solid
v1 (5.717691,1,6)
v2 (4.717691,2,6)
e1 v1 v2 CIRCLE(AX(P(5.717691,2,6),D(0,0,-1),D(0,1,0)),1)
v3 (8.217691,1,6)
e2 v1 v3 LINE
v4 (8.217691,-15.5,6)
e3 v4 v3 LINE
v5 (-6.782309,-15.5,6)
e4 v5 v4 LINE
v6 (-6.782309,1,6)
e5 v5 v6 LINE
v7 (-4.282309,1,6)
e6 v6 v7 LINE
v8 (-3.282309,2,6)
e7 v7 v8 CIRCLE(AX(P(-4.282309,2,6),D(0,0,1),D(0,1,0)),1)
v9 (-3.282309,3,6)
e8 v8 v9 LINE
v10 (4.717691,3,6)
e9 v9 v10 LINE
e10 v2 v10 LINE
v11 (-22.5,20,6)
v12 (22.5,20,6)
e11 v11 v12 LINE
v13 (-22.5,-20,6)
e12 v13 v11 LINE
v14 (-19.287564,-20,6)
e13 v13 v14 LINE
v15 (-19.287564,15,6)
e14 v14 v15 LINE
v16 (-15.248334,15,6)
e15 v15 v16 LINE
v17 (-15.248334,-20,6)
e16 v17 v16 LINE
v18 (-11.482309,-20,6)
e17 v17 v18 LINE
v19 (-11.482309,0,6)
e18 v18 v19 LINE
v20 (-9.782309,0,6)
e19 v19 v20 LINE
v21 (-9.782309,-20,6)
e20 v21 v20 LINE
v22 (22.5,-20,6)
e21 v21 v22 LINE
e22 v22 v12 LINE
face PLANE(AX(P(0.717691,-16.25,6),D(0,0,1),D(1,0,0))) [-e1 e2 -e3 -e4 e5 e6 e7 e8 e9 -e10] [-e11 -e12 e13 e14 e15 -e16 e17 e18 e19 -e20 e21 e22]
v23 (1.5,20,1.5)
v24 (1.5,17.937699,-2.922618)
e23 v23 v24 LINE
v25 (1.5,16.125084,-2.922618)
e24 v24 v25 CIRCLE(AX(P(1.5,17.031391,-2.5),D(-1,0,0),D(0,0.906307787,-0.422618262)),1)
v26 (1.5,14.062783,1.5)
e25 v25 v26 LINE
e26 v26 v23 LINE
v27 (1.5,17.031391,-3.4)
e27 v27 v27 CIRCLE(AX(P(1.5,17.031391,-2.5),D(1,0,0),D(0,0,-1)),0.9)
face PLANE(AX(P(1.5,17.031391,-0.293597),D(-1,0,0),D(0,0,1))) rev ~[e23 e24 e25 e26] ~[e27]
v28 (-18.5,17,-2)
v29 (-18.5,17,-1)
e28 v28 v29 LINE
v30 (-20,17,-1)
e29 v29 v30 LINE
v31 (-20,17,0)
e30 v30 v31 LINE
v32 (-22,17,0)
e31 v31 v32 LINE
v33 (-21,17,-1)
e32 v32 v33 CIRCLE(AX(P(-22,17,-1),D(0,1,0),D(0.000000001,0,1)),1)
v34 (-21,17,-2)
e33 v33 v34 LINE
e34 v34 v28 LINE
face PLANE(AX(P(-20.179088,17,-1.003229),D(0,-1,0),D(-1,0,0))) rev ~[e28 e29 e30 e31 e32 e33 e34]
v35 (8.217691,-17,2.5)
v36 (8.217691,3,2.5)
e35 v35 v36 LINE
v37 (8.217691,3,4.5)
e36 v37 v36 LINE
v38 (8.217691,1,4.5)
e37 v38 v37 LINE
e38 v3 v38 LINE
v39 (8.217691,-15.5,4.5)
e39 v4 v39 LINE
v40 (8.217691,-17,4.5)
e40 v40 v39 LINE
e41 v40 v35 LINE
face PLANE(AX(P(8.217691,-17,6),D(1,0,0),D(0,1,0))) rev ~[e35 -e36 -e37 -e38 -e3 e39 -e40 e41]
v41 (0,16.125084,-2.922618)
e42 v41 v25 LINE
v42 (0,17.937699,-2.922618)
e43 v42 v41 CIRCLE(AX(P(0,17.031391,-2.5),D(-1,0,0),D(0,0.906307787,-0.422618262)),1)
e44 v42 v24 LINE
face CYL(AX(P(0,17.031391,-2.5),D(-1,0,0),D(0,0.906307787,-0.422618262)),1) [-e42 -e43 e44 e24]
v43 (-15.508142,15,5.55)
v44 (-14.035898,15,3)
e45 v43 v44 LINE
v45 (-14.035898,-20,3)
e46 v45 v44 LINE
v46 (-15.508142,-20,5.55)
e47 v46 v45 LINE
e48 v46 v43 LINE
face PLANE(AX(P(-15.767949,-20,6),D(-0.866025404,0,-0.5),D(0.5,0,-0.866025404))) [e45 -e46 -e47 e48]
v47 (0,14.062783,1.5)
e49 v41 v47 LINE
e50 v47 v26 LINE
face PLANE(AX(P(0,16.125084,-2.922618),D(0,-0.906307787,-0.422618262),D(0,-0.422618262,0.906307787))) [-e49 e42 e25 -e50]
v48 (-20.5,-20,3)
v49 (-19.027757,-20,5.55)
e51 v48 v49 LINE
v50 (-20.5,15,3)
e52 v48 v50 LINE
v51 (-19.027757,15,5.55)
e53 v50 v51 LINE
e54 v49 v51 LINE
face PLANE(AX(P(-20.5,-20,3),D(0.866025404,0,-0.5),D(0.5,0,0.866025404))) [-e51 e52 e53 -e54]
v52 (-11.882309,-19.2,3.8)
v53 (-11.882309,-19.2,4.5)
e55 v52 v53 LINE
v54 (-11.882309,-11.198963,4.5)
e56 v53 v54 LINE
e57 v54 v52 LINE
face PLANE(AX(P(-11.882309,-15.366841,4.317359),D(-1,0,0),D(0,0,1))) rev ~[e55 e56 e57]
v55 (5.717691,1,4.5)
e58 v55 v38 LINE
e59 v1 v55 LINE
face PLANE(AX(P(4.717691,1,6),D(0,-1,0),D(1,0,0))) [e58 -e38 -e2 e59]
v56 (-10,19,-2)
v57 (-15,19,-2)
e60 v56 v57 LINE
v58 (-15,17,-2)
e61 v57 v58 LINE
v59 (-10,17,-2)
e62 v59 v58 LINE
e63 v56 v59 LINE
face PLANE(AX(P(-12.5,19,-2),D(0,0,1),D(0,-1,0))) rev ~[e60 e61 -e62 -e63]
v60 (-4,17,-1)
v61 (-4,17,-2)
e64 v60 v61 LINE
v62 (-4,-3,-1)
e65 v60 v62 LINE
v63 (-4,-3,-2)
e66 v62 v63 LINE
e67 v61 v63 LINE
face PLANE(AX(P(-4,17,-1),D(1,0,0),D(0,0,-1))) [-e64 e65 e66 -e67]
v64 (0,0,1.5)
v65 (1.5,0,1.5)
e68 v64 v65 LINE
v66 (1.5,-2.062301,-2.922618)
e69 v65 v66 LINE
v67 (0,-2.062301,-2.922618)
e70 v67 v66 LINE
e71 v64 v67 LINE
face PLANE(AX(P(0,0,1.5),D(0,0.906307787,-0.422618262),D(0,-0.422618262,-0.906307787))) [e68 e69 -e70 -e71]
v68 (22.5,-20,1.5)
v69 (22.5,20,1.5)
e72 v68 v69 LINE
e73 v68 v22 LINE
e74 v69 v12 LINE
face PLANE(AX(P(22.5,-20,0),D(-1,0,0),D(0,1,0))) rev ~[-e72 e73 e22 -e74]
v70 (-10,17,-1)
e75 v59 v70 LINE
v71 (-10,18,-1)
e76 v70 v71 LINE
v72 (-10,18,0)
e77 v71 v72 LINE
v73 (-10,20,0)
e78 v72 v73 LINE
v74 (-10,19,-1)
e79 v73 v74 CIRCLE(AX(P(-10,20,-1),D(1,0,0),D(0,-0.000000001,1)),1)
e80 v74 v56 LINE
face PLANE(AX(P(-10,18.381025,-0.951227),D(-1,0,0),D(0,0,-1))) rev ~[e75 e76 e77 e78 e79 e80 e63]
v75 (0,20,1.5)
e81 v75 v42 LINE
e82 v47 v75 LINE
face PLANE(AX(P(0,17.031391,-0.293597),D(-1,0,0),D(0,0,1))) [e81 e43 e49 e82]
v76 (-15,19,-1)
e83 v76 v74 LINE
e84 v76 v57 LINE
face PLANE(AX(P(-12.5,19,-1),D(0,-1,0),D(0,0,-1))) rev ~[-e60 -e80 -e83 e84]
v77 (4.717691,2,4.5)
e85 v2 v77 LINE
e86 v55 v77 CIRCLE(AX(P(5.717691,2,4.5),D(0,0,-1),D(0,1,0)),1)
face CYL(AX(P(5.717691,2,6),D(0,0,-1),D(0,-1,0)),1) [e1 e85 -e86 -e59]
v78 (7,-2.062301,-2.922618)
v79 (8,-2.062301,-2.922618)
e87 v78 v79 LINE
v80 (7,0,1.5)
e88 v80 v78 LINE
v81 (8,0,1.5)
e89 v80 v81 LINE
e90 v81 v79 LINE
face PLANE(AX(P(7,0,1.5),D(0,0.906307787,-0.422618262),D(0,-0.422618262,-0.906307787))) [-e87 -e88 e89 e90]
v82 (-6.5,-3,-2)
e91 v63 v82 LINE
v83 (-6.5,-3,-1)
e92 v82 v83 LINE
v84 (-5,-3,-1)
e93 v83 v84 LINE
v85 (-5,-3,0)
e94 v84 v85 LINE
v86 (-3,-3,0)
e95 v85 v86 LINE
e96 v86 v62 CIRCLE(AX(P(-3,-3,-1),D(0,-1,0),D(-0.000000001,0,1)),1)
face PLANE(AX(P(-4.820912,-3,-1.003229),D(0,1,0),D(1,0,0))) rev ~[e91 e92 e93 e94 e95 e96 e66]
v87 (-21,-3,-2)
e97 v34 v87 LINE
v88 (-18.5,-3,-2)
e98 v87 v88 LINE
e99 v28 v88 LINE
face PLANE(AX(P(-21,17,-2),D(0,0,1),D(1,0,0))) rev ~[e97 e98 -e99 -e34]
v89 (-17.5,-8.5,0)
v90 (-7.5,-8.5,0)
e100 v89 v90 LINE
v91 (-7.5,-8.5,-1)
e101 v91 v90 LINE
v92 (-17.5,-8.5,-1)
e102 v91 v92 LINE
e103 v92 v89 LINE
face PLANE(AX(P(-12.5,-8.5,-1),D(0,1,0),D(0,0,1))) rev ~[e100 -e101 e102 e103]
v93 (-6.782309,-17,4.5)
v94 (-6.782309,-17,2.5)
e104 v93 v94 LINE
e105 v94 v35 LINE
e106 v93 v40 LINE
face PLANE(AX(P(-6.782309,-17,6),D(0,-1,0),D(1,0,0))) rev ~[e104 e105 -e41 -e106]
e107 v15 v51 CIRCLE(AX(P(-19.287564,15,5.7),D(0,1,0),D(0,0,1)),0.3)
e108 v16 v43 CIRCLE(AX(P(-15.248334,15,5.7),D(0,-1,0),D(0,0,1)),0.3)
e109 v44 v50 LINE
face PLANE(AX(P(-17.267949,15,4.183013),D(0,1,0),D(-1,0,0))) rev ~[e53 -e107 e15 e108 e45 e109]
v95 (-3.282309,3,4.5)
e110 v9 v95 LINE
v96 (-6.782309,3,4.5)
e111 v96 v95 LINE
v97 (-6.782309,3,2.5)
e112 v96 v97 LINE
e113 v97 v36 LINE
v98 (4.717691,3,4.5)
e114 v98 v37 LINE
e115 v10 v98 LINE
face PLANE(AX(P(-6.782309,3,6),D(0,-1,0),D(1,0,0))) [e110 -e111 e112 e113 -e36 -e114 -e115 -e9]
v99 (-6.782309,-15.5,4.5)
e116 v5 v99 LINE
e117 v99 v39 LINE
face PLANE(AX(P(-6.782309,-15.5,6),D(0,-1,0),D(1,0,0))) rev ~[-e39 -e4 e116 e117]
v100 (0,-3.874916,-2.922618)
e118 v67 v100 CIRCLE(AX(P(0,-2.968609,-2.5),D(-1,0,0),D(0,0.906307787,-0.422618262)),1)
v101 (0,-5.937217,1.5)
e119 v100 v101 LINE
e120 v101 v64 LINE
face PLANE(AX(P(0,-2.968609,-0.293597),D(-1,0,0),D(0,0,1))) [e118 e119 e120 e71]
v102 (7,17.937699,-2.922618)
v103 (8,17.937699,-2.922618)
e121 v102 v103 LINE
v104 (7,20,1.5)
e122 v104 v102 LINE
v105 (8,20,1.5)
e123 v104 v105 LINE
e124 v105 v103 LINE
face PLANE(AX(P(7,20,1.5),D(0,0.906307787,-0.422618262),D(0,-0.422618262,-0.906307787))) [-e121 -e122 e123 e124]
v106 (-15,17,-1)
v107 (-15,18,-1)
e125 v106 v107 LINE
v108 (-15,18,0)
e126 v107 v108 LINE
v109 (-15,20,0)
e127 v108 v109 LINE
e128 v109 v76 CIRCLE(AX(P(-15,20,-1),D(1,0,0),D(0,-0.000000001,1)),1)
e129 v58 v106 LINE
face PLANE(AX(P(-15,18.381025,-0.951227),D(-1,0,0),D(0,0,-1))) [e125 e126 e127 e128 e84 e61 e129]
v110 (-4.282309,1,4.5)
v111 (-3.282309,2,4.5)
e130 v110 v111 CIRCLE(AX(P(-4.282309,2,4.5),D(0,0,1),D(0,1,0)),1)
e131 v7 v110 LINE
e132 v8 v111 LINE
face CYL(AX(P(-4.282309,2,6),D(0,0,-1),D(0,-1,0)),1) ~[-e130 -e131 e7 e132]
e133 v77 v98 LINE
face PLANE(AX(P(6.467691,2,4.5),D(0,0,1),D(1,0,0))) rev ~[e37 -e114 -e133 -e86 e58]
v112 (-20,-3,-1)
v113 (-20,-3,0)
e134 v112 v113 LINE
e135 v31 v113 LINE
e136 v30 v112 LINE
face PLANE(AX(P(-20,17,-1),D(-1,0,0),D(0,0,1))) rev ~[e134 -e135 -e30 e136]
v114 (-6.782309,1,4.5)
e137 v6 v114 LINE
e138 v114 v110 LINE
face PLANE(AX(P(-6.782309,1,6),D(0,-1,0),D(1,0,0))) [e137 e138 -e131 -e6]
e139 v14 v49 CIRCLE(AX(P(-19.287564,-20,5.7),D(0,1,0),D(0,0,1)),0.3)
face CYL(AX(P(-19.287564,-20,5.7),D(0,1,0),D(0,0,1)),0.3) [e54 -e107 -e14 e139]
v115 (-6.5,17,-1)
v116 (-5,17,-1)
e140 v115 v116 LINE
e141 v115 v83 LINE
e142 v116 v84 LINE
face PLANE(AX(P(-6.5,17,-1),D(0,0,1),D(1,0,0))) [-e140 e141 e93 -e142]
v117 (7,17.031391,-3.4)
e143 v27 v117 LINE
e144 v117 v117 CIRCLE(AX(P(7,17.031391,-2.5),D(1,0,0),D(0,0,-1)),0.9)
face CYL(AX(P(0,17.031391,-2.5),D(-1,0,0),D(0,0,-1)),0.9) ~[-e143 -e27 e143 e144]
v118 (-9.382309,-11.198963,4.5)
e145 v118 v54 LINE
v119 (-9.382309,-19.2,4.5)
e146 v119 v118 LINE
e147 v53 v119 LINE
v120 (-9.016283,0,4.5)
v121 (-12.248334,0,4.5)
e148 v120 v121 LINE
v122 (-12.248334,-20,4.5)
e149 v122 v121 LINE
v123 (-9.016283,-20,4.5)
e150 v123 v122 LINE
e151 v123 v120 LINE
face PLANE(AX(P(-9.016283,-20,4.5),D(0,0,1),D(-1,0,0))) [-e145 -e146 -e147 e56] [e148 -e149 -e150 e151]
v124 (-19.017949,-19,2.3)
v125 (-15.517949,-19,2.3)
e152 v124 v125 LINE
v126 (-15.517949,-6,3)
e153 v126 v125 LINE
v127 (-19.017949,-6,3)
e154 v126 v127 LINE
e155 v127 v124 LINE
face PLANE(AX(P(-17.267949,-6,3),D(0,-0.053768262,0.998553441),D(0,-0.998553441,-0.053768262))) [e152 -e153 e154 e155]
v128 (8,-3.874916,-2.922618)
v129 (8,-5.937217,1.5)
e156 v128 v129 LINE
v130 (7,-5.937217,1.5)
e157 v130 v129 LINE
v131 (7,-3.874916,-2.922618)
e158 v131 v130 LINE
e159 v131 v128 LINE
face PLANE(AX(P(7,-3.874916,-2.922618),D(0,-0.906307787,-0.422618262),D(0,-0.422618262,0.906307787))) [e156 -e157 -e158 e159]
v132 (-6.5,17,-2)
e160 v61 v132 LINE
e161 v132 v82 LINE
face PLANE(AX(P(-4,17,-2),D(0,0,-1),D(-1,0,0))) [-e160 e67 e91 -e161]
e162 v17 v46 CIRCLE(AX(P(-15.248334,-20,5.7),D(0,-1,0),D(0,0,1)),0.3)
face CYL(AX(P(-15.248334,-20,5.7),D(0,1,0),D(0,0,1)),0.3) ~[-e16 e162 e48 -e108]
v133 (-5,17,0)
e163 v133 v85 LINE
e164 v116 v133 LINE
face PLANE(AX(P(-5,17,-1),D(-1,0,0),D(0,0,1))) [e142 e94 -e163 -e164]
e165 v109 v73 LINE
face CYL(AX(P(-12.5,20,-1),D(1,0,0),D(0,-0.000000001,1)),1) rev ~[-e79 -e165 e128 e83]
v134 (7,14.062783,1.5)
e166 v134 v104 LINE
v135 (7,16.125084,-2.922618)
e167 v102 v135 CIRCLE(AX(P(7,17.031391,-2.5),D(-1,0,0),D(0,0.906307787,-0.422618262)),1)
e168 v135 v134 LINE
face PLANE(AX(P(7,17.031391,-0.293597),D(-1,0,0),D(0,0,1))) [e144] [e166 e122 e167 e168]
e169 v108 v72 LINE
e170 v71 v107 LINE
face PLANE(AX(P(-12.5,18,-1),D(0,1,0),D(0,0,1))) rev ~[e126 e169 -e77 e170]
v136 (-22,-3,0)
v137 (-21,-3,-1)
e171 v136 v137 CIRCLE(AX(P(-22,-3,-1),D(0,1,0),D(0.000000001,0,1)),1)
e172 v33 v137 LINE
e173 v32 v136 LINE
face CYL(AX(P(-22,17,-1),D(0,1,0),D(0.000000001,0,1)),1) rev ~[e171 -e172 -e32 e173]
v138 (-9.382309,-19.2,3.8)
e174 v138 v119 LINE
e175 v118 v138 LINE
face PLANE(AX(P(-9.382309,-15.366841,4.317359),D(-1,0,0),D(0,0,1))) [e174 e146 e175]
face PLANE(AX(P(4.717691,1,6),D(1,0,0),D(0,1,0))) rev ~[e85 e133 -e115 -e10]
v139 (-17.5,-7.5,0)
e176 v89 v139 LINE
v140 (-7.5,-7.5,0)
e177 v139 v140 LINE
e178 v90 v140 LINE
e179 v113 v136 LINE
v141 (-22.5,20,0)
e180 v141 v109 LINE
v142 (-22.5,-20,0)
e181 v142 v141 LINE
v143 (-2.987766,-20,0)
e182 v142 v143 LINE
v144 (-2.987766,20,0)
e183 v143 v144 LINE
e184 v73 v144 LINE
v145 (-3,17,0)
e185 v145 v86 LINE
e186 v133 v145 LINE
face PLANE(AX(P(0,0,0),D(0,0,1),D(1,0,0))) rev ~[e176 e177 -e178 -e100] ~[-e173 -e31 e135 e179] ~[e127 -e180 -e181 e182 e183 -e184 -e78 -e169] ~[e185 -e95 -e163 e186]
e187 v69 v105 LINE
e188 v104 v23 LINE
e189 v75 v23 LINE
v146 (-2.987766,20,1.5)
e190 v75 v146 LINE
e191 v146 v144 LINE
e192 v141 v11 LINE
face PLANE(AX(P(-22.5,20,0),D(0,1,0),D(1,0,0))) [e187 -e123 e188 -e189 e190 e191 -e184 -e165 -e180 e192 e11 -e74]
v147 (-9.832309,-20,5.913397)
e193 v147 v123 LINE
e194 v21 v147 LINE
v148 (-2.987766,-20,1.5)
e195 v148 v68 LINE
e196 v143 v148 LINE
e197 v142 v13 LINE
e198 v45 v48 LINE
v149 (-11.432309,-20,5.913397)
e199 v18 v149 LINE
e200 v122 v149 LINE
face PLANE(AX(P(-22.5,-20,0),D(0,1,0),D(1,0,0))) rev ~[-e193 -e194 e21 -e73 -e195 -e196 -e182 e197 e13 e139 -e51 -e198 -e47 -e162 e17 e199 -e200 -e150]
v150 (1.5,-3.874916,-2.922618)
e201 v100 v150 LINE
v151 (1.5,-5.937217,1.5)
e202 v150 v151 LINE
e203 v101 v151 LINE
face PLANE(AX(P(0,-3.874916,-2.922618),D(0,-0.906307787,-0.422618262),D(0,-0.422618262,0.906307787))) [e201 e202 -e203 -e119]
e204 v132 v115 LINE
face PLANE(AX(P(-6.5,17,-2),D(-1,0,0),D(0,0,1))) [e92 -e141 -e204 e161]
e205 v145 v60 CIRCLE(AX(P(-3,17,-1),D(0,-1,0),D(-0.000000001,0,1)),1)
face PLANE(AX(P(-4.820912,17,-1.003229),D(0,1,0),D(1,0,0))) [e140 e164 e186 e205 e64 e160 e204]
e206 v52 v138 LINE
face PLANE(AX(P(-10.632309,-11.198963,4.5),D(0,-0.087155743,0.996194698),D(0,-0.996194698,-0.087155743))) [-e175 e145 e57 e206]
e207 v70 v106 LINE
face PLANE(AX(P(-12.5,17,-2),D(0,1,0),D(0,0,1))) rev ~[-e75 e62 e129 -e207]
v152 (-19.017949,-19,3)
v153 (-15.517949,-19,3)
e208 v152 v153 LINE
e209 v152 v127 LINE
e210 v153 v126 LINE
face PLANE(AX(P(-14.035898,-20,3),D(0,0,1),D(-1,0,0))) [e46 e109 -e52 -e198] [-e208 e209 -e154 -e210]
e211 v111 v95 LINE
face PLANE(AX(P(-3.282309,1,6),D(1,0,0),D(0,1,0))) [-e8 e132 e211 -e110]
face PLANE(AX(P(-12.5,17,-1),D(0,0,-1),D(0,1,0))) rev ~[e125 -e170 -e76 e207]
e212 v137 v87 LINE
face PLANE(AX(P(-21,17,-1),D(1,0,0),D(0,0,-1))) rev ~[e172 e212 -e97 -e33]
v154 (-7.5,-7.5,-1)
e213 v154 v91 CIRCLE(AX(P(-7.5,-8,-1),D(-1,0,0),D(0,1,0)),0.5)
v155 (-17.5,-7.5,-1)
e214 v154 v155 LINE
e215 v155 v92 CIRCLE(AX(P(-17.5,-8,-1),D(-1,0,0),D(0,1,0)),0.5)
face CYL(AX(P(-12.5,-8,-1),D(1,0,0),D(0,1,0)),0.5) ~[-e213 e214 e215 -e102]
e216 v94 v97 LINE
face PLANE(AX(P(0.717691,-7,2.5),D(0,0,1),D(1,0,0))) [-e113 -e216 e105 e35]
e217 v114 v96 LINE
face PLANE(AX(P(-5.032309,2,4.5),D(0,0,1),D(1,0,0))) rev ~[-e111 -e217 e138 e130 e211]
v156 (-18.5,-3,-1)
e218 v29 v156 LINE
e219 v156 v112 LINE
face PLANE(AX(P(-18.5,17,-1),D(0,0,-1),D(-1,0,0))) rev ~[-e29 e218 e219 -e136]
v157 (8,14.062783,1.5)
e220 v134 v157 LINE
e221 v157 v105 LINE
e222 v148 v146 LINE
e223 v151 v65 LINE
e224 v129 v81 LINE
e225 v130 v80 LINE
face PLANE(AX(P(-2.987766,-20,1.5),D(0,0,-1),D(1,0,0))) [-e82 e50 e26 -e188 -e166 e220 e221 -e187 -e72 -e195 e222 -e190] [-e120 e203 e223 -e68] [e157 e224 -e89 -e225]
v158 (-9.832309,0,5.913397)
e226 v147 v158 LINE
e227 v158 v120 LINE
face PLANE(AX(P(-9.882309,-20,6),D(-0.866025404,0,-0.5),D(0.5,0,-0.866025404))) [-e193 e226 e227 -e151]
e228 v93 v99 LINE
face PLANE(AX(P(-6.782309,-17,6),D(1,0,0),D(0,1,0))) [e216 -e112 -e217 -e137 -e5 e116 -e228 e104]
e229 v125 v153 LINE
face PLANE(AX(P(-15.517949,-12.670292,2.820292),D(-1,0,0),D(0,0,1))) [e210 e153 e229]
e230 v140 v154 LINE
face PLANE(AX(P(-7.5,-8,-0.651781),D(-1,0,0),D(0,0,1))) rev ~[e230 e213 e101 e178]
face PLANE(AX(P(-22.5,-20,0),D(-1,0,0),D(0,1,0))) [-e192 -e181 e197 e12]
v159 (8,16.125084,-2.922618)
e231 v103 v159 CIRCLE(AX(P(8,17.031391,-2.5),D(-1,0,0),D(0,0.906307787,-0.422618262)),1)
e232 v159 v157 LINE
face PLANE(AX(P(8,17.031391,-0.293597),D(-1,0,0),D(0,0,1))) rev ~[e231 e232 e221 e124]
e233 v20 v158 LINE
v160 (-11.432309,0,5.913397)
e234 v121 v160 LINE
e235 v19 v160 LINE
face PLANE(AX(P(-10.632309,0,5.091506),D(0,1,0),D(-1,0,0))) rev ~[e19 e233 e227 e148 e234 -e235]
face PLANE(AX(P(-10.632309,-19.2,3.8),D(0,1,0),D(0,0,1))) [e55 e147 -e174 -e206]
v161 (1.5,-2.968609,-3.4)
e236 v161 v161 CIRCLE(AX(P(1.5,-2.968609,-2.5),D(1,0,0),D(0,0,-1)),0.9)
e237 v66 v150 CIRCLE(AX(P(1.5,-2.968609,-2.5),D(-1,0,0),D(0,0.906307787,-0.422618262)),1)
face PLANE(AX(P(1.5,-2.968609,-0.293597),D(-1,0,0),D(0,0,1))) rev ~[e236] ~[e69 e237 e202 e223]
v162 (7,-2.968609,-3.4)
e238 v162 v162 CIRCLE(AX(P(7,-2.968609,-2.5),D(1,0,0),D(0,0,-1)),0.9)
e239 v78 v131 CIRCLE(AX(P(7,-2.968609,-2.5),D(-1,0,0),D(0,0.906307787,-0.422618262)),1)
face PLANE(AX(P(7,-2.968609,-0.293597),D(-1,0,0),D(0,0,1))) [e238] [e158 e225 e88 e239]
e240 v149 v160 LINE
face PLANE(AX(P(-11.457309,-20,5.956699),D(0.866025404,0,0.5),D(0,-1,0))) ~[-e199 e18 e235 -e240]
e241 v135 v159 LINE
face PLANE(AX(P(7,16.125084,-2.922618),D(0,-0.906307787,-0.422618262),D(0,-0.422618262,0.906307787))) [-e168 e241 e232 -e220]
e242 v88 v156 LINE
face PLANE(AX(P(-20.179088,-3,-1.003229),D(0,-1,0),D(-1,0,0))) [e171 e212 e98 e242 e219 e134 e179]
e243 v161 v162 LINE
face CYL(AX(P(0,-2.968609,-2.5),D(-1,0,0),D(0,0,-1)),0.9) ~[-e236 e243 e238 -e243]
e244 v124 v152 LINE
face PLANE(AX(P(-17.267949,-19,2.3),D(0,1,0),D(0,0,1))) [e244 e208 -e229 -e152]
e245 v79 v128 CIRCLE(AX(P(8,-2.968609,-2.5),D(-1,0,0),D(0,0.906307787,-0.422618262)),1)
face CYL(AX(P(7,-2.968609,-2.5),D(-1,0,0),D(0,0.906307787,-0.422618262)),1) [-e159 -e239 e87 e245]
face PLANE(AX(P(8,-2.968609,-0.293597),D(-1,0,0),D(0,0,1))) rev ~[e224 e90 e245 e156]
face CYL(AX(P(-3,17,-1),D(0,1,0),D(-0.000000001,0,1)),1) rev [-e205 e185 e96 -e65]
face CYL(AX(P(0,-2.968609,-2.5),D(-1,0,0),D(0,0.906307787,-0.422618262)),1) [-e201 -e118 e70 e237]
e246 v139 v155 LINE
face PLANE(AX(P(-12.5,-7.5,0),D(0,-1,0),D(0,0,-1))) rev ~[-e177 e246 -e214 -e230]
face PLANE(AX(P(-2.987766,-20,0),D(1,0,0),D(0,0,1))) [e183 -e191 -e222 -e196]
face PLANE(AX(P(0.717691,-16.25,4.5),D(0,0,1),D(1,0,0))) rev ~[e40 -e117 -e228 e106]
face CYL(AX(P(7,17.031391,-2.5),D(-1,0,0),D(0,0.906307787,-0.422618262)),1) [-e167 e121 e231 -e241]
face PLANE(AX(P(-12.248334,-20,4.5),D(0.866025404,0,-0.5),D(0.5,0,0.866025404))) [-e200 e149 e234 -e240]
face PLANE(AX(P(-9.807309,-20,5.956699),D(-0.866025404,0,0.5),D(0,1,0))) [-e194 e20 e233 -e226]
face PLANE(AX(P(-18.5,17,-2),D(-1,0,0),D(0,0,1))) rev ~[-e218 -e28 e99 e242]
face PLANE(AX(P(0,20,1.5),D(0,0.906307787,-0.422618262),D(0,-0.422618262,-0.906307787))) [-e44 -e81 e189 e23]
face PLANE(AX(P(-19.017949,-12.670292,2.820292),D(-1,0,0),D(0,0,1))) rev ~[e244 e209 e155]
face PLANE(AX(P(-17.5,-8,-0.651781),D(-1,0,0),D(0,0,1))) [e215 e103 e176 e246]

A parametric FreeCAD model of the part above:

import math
import FreeCAD as App
import Part
import Sketcher
from FreeCAD import Vector
Q = App.Units.Quantity


def edges_at(feature, points):
    """Names of the edges that pass closest to the given points."""
    edges = feature.Shape.Edges
    near = lambda p: min(range(len(edges)), key=lambda i: edges[i].distToShape(Part.Vertex(*p))[0])
    return sorted({f"Edge{near(p) + 1}" for p in points})


def add_polygon(sketch, points):
    """Adds a closed chain of lines whose ends are joined by coincident constraints."""
    first, n = sketch.GeometryCount, len(points)
    for a, b in zip(points, points[1:] + points[:1]):
        sketch.addGeometry(Part.LineSegment(App.Vector(*a, 0), App.Vector(*b, 0)), False)
    for i in range(n):
        sketch.addConstraint(Sketcher.Constraint("Coincident", first + i, 2, first + (i + 1) % n, 1))

doc = App.newDocument("Part")
body = doc.addObject("PartDesign::Body", "Body")

# Sketch on XY plane
sketch1 = doc.addObject("Sketcher::SketchObject", "Sketch")
body.addObject(sketch1)
sketch1.AttachmentSupport = (doc.XY_Plane, [""])
sketch1.MapMode = "FlatFace"
add_polygon(sketch1, [(-22, 20), (-22, -20), (22, -20), (22, 20)])  # lines 0-3
sketch1.addConstraint([
    Sketcher.Constraint("Vertical", 0),
    Sketcher.Constraint("Horizontal", 1),
    Sketcher.Constraint("Vertical", 2),
    Sketcher.Constraint("Horizontal", 3),
    Sketcher.Constraint("Symmetric", 0, 2, 2, 2, -1, 1),
    Sketcher.Constraint("DistanceX", 1, 1, 1, 2, 45.0),
    Sketcher.Constraint("DistanceY", 0, 2, 0, 1, 40.0),
])
pad1 = doc.addObject("PartDesign::Pad", "Pad")
body.addObject(pad1)
pad1.Profile = sketch1
pad1.Length = 6

# Sketch on XZ plane
sketch2 = doc.addObject("Sketcher::SketchObject", "Sketch001")
body.addObject(sketch2)
sketch2.AttachmentSupport = (doc.XZ_Plane, [""])
sketch2.MapMode = "FlatFace"
sketch2.AttachmentOffset = App.Placement(Vector(0, 0, 20), App.Rotation())
add_polygon(sketch2, [(-14, 3), (-15.8, 6), (-18.8, 6), (-20.5, 3)])  # lines 0-3
sketch2.addConstraint([
    Sketcher.Constraint("Horizontal", 1),
    Sketcher.Constraint("Horizontal", 3),
    Sketcher.Constraint("Equal", 0, 2),
    Sketcher.Constraint("DistanceX", 1, 2, 1, 1, 3.0),
    Sketcher.Constraint("Angle", 0, Q("120 deg")),
    Sketcher.Constraint("DistanceY", -1, 1, 0, 2, 6.0),
    Sketcher.Constraint("DistanceY", -1, 1, 2, 2, 3.0),
    Sketcher.Constraint("DistanceX", 2, 2, -1, 1, 20.5),
])
pocket1 = doc.addObject("PartDesign::Pocket", "Pocket")
body.addObject(pocket1)
pocket1.Profile = sketch2
pocket1.Length = 35
doc.recompute()

fillet = doc.addObject("PartDesign::Fillet", "Fillet")
body.addObject(fillet)
fillet.Base = (pocket1, edges_at(pocket1, [(-18.768, -2.5, 6), (-15.768, -2.5, 6)]))
fillet.Radius = 0.3

# Sketch on XZ plane
sketch3 = doc.addObject("Sketcher::SketchObject", "Sketch002")
body.addObject(sketch3)
sketch3.AttachmentSupport = (doc.XZ_Plane, [""])
sketch3.MapMode = "FlatFace"
sketch3.AttachmentOffset = App.Placement(Vector(0, 0, 20), App.Rotation())
add_polygon(sketch3, [(-9, 4.5), (-9.9, 6), (-11.4, 6), (-12.2, 4.5)])  # lines 0-3
sketch3.addConstraint([
    Sketcher.Constraint("Horizontal", 1),
    Sketcher.Constraint("Horizontal", 3),
    Sketcher.Constraint("Equal", 0, 2),
    Sketcher.Constraint("Angle", 0, Q("120 deg")),
    Sketcher.Constraint("DistanceX", 1, 2, 1, 1, 1.5),
    Sketcher.Constraint("DistanceY", -1, 1, 0, 2, 6.0),
    Sketcher.Constraint("DistanceY", -1, 1, 2, 2, 4.5),
    Sketcher.Constraint("DistanceX", 0, 2, -1, 1, 9.882309),
])
pocket2 = doc.addObject("PartDesign::Pocket", "Pocket001")
body.addObject(pocket2)
pocket2.Profile = sketch3
pocket2.Length = 20
doc.recompute()

chamfer = doc.addObject("PartDesign::Chamfer", "Chamfer")
body.addObject(chamfer)
chamfer.Base = (pocket2, edges_at(pocket2, [(-11.382, -10, 6), (-9.882, -10, 6)]))
chamfer.Size = 0.1

# Sketch on XZ plane
sketch4 = doc.addObject("Sketcher::SketchObject", "Sketch003")
body.addObject(sketch4)
sketch4.AttachmentSupport = (doc.XZ_Plane, [""])
sketch4.MapMode = "FlatFace"
sketch4.AttachmentOffset = App.Placement(Vector(0, 0, 20), App.Rotation())
add_polygon(sketch4, [(-3, 1.5), (-3, 0), (22.5, 0), (22.5, 1.5)])  # lines 0-3
sketch4.addConstraint([
    Sketcher.Constraint("Vertical", 0),
    Sketcher.Constraint("Horizontal", 1),
    Sketcher.Constraint("Vertical", 2),
    Sketcher.Constraint("Horizontal", 3),
    Sketcher.Constraint("PointOnObject", 0, 2, -1),
    Sketcher.Constraint("DistanceY", 0, 2, 0, 1, 1.5),
    Sketcher.Constraint("DistanceX", -1, 1, 1, 2, 22.5),
    Sketcher.Constraint("DistanceX", 1, 1, 1, 2, 25.487766),
])
pocket3 = doc.addObject("PartDesign::Pocket", "Pocket002")
body.addObject(pocket3)
pocket3.Profile = sketch4
pocket3.Type = "ThroughAll"

# Sketch on YZ plane
sketch5 = doc.addObject("Sketcher::SketchObject", "Sketch004")
body.addObject(sketch5)
sketch5.AttachmentSupport = (doc.YZ_Plane, [""])
sketch5.MapMode = "FlatFace"
sketch5.AttachmentOffset = App.Placement(Vector(0, 0, -17.267949), App.Rotation())
add_polygon(sketch5, [(-6, 3), (-19, 3), (-19, 2.3)])  # lines 0-2
sketch5.addConstraint([
    Sketcher.Constraint("Horizontal", 0),
    Sketcher.Constraint("Vertical", 1),
    Sketcher.Constraint("DistanceX", 0, 2, 0, 1, 13.0),
    Sketcher.Constraint("DistanceY", 1, 2, 1, 1, 0.7),
    Sketcher.Constraint("DistanceX", 0, 2, -1, 1, 19.0),
    Sketcher.Constraint("DistanceY", -1, 1, 0, 2, 3.0),
])
pocket4 = doc.addObject("PartDesign::Pocket", "Pocket003")
body.addObject(pocket4)
pocket4.Profile = sketch5
pocket4.Length = 3.5
pocket4.Midplane = True

# Sketch on YZ plane
sketch6 = doc.addObject("Sketcher::SketchObject", "Sketch005")
body.addObject(sketch6)
sketch6.AttachmentSupport = (doc.YZ_Plane, [""])
sketch6.MapMode = "FlatFace"
sketch6.AttachmentOffset = App.Placement(Vector(0, 0, -10.632309), App.Rotation())
add_polygon(sketch6, [(-11.2, 4.5), (-19.2, 4.5), (-19.2, 3.8)])  # lines 0-2
sketch6.addConstraint([
    Sketcher.Constraint("Horizontal", 0),
    Sketcher.Constraint("Vertical", 1),
    Sketcher.Constraint("Angle", 2, Q("5 deg")),
    Sketcher.Constraint("DistanceY", 1, 2, 1, 1, 0.7),
    Sketcher.Constraint("DistanceX", 0, 2, -1, 1, 19.2),
    Sketcher.Constraint("DistanceY", -1, 1, 0, 2, 4.5),
])
pocket5 = doc.addObject("PartDesign::Pocket", "Pocket004")
body.addObject(pocket5)
pocket5.Profile = sketch6
pocket5.Length = 2.5
pocket5.Midplane = True

# Sketch on XY plane
sketch7 = doc.addObject("Sketcher::SketchObject", "Sketch006")
body.addObject(sketch7)
sketch7.AttachmentSupport = (doc.XY_Plane, [""])
sketch7.MapMode = "FlatFace"
sketch7.AttachmentOffset = App.Placement(Vector(0, 0, 6), App.Rotation())
add_polygon(sketch7, [(-7, 3), (-7, -17), (8, -17), (8, 3)])  # lines 0-3
sketch7.addConstraint([
    Sketcher.Constraint("Vertical", 0),
    Sketcher.Constraint("Horizontal", 1),
    Sketcher.Constraint("Vertical", 2),
    Sketcher.Constraint("Horizontal", 3),
    Sketcher.Constraint("DistanceX", 1, 1, 1, 2, 15.0),
    Sketcher.Constraint("DistanceY", 0, 2, 0, 1, 20.0),
    Sketcher.Constraint("DistanceY", 0, 2, -1, 1, 17.0),
    Sketcher.Constraint("DistanceX", 0, 2, -1, 1, 6.782309),
])
pocket6 = doc.addObject("PartDesign::Pocket", "Pocket005")
body.addObject(pocket6)
pocket6.Profile = sketch7
pocket6.Length = 3.5

# Sketch on XY plane
sketch8 = doc.addObject("Sketcher::SketchObject", "Sketch007")
body.addObject(sketch8)
sketch8.AttachmentSupport = (doc.XY_Plane, [""])
sketch8.MapMode = "FlatFace"
sketch8.AttachmentOffset = App.Placement(Vector(0, 0, 6), App.Rotation())
add_polygon(sketch8, [(-6.8, -15.5), (-6.8, -17), (8.2, -17), (8.2, -15.5)])  # lines 0-3
add_polygon(sketch8, [(-6.8, 3), (-6.8, 1), (-3.3, 1), (-3.3, 3)])  # lines 4-7
add_polygon(sketch8, [(4.7, 3), (4.7, 1), (8.2, 1), (8.2, 3)])  # lines 8-11
sketch8.addConstraint([
    Sketcher.Constraint("Vertical", 0),
    Sketcher.Constraint("Horizontal", 1),
    Sketcher.Constraint("Vertical", 2),
    Sketcher.Constraint("Horizontal", 3),
    Sketcher.Constraint("Vertical", 4),
    Sketcher.Constraint("Horizontal", 5),
    Sketcher.Constraint("Vertical", 6),
    Sketcher.Constraint("Horizontal", 7),
    Sketcher.Constraint("Vertical", 8),
    Sketcher.Constraint("Horizontal", 9),
    Sketcher.Constraint("Vertical", 10),
    Sketcher.Constraint("Horizontal", 11),
    Sketcher.Constraint("Horizontal", 5, 2, 8, 2),
    Sketcher.Constraint("Horizontal", 7, 2, 10, 2),
    Sketcher.Constraint("Vertical", 3, 2, 4, 2),
    Sketcher.Constraint("Vertical", 2, 2, 9, 2),
    Sketcher.Constraint("Equal", 7, 9),
    Sketcher.Constraint("DistanceX", 1, 1, 1, 2, 15.0),
    Sketcher.Constraint("DistanceY", 4, 2, 4, 1, 2.0),
    Sketcher.Constraint("DistanceX", 5, 1, 5, 2, 3.5),
    Sketcher.Constraint("DistanceY", 0, 2, 0, 1, 1.5),
    Sketcher.Constraint("DistanceY", 0, 2, -1, 1, 17.0),
    Sketcher.Constraint("DistanceY", -1, 1, 4, 2, 1.0),
    Sketcher.Constraint("DistanceX", 0, 2, -1, 1, 6.782309),
])
pad2 = doc.addObject("PartDesign::Pad", "Pad001")
body.addObject(pad2)
pad2.Profile = sketch8
pad2.Length = 1.5
pad2.Reversed = True
doc.recompute()

fillet2 = doc.addObject("PartDesign::Fillet", "Fillet001")
body.addObject(fillet2)
fillet2.Base = (pad2, edges_at(pad2, [(-3.282, 1, 5.25), (4.718, 1, 5.25)]))
fillet2.Radius = 1

# Sketch on YZ plane
sketch9 = doc.addObject("Sketcher::SketchObject", "Sketch008")
body.addObject(sketch9)
sketch9.AttachmentSupport = (doc.YZ_Plane, [""])
sketch9.MapMode = "FlatFace"
sketch9.addGeometry([
    Part.LineSegment(Vector(14.1, 1.5, 0), Vector(16.1, -2.9, 0)),  # 0
    Part.ArcOfCircle(Part.Circle(Vector(17, -2.5, 0), Vector(0, 0, 1), 1), math.radians(-155), math.radians(-25)),  # 1
    Part.LineSegment(Vector(17.9, -2.9, 0), Vector(20, 1.5, 0)),  # 2
    Part.LineSegment(Vector(20, 1.5, 0), Vector(14.1, 1.5, 0)),  # 3
    Part.Circle(Vector(17, -2.5, 0), Vector(0, 0, 1), 0.9),  # 4
    Part.ArcOfCircle(Part.Circle(Vector(-3, -2.5, 0), Vector(0, 0, 1), 1), math.radians(-155), math.radians(-25)),  # 5
    Part.LineSegment(Vector(-2.1, -2.9, 0), Vector(0, 1.5, 0)),  # 6
    Part.LineSegment(Vector(0, 1.5, 0), Vector(-5.9, 1.5, 0)),  # 7
    Part.LineSegment(Vector(-5.9, 1.5, 0), Vector(-3.9, -2.9, 0)),  # 8
    Part.Circle(Vector(-3, -2.5, 0), Vector(0, 0, 1), 0.9),  # 9
], False)
sketch9.addConstraint([
    Sketcher.Constraint("Tangent", 0, 2, 1, 1),
    Sketcher.Constraint("Tangent", 1, 2, 2, 1),
    Sketcher.Constraint("Coincident", 2, 2, 3, 1),
    Sketcher.Constraint("Coincident", 3, 2, 0, 1),
    Sketcher.Constraint("Tangent", 5, 2, 6, 1),
    Sketcher.Constraint("Coincident", 6, 2, 7, 1),
    Sketcher.Constraint("Coincident", 7, 2, 8, 1),
    Sketcher.Constraint("Tangent", 8, 2, 5, 1),
    Sketcher.Constraint("Horizontal", 3),
    Sketcher.Constraint("Horizontal", 7),
    Sketcher.Constraint("Coincident", 4, 3, 1, 3),
    Sketcher.Constraint("Coincident", 9, 3, 5, 3),
    Sketcher.Constraint("Equal", 1, 5),
    Sketcher.Constraint("Equal", 4, 9),
    Sketcher.Constraint("PointOnObject", 6, 2, -2),
    Sketcher.Constraint("Parallel", 2, 6),
    Sketcher.Constraint("Parallel", 0, 8),
    Sketcher.Constraint("Horizontal", 4, 3, 5, 3),
    Sketcher.Constraint("Horizontal", 0, 2, 1, 2),
    Sketcher.Constraint("Horizontal", 3, 2, 6, 2),
    Sketcher.Constraint("Radius", 1, 1.0),
    Sketcher.Constraint("Diameter", 4, 1.8),
    Sketcher.Constraint("Angle", 0, Q("-65 deg")),
    Sketcher.Constraint("DistanceX", -1, 1, 2, 2, 20.0),
    Sketcher.Constraint("DistanceY", 1, 3, 2, 2, 4.0),
    Sketcher.Constraint("DistanceY", 1, 3, -1, 1, 2.5),
])
pad3 = doc.addObject("PartDesign::Pad", "Pad002")
body.addObject(pad3)
pad3.Profile = sketch9
pad3.Length = 1.5

# Sketch on YZ plane
sketch10 = doc.addObject("Sketcher::SketchObject", "Sketch009")
body.addObject(sketch10)
sketch10.AttachmentSupport = (doc.YZ_Plane, [""])
sketch10.MapMode = "FlatFace"
sketch10.AttachmentOffset = App.Placement(Vector(0, 0, 7), App.Rotation())
sketch10.addGeometry([
    Part.ArcOfCircle(Part.Circle(Vector(-3, -2.5, 0), Vector(0, 0, 1), 1), math.radians(-155), math.radians(-25)),  # 0
    Part.LineSegment(Vector(-2.1, -2.9, 0), Vector(0, 1.5, 0)),  # 1
    Part.LineSegment(Vector(0, 1.5, 0), Vector(-5.9, 1.5, 0)),  # 2
    Part.LineSegment(Vector(-5.9, 1.5, 0), Vector(-3.9, -2.9, 0)),  # 3
    Part.Circle(Vector(-3, -2.5, 0), Vector(0, 0, 1), 0.9),  # 4
    Part.LineSegment(Vector(14.1, 1.5, 0), Vector(16.1, -2.9, 0)),  # 5
    Part.ArcOfCircle(Part.Circle(Vector(17, -2.5, 0), Vector(0, 0, 1), 1), math.radians(-155), math.radians(-25)),  # 6
    Part.LineSegment(Vector(17.9, -2.9, 0), Vector(20, 1.5, 0)),  # 7
    Part.LineSegment(Vector(20, 1.5, 0), Vector(14.1, 1.5, 0)),  # 8
    Part.Circle(Vector(17, -2.5, 0), Vector(0, 0, 1), 0.9),  # 9
], False)
sketch10.addConstraint([
    Sketcher.Constraint("Tangent", 0, 2, 1, 1),
    Sketcher.Constraint("Coincident", 1, 2, 2, 1),
    Sketcher.Constraint("Coincident", 2, 2, 3, 1),
    Sketcher.Constraint("Tangent", 3, 2, 0, 1),
    Sketcher.Constraint("Tangent", 5, 2, 6, 1),
    Sketcher.Constraint("Tangent", 6, 2, 7, 1),
    Sketcher.Constraint("Coincident", 7, 2, 8, 1),
    Sketcher.Constraint("Coincident", 8, 2, 5, 1),
    Sketcher.Constraint("Horizontal", 2),
    Sketcher.Constraint("Horizontal", 8),
    Sketcher.Constraint("Coincident", 4, 3, 0, 3),
    Sketcher.Constraint("Coincident", 9, 3, 6, 3),
    Sketcher.Constraint("Equal", 0, 6),
    Sketcher.Constraint("Equal", 4, 9),
    Sketcher.Constraint("PointOnObject", 1, 2, -2),
    Sketcher.Constraint("Parallel", 3, 5),
    Sketcher.Constraint("Parallel", 1, 7),
    Sketcher.Constraint("Horizontal", 4, 3, 6, 3),
    Sketcher.Constraint("Horizontal", 0, 2, 3, 2),
    Sketcher.Constraint("Horizontal", 2, 2, 7, 2),
    Sketcher.Constraint("Radius", 0, 1.0),
    Sketcher.Constraint("Diameter", 4, 1.8),
    Sketcher.Constraint("Angle", 1, Q("65 deg")),
    Sketcher.Constraint("DistanceX", -1, 1, 7, 2, 20.0),
    Sketcher.Constraint("DistanceY", 0, 3, 1, 2, 4.0),
    Sketcher.Constraint("DistanceY", 0, 3, -1, 1, 2.5),
])
pad4 = doc.addObject("PartDesign::Pad", "Pad003")
body.addObject(pad4)
pad4.Profile = sketch10
pad4.Length = 1

# Sketch on YZ plane
sketch11 = doc.addObject("Sketcher::SketchObject", "Sketch010")
body.addObject(sketch11)
sketch11.AttachmentSupport = (doc.YZ_Plane, [""])
sketch11.MapMode = "FlatFace"
sketch11.addGeometry([
    Part.Circle(Vector(17, -2.5, 0), Vector(0, 0, 1), 0.9),
    Part.Circle(Vector(-3, -2.5, 0), Vector(0, 0, 1), 0.9),
], False)
sketch11.addConstraint([
    Sketcher.Constraint("Equal", 0, 1),
    Sketcher.Constraint("Horizontal", 0, 3, 1, 3),
    Sketcher.Constraint("Diameter", 0, 1.8),
    Sketcher.Constraint("DistanceX", 1, 3, 0, 3, 20.0),
    Sketcher.Constraint("DistanceY", 0, 3, -1, 1, 2.5),
    Sketcher.Constraint("DistanceX", -1, 1, 0, 3, 17.031391),
])
pad5 = doc.addObject("PartDesign::Pad", "Pad004")
body.addObject(pad5)
pad5.Profile = sketch11
pad5.Length = 8

# Sketch on XZ plane
sketch12 = doc.addObject("Sketcher::SketchObject", "Sketch011")
body.addObject(sketch12)
sketch12.AttachmentSupport = (doc.XZ_Plane, [""])
sketch12.MapMode = "FlatFace"
sketch12.AttachmentOffset = App.Placement(Vector(0, 0, -17), App.Rotation())
sketch12.addGeometry([
    Part.LineSegment(Vector(-21, -2, 0), Vector(-21, -1, 0)),  # 0
    Part.ArcOfCircle(Part.Circle(Vector(-22, -1, 0), Vector(0, 0, 1), 1), math.radians(0), math.radians(90)),  # 1
    Part.LineSegment(Vector(-22, 0, 0), Vector(-20, 0, 0)),  # 2
    Part.LineSegment(Vector(-20, 0, 0), Vector(-20, -1, 0)),  # 3
    Part.LineSegment(Vector(-20, -1, 0), Vector(-18.5, -1, 0)),  # 4
    Part.LineSegment(Vector(-18.5, -1, 0), Vector(-18.5, -2, 0)),  # 5
    Part.LineSegment(Vector(-18.5, -2, 0), Vector(-21, -2, 0)),  # 6
    Part.LineSegment(Vector(-5, 0, 0), Vector(-3, 0, 0)),  # 7
    Part.ArcOfCircle(Part.Circle(Vector(-3, -1, 0), Vector(0, 0, 1), 1), math.radians(90), math.radians(180)),  # 8
    Part.LineSegment(Vector(-4, -1, 0), Vector(-4, -2, 0)),  # 9
    Part.LineSegment(Vector(-4, -2, 0), Vector(-6.5, -2, 0)),  # 10
    Part.LineSegment(Vector(-6.5, -2, 0), Vector(-6.5, -1, 0)),  # 11
    Part.LineSegment(Vector(-6.5, -1, 0), Vector(-5, -1, 0)),  # 12
    Part.LineSegment(Vector(-5, -1, 0), Vector(-5, 0, 0)),  # 13
], False)
sketch12.addConstraint([
    Sketcher.Constraint("Tangent", 0, 2, 1, 1),
    Sketcher.Constraint("Tangent", 1, 2, 2, 1),
    Sketcher.Constraint("Coincident", 2, 2, 3, 1),
    Sketcher.Constraint("Coincident", 3, 2, 4, 1),
    Sketcher.Constraint("Coincident", 4, 2, 5, 1),
    Sketcher.Constraint("Coincident", 5, 2, 6, 1),
    Sketcher.Constraint("Coincident", 6, 2, 0, 1),
    Sketcher.Constraint("Tangent", 7, 2, 8, 1),
    Sketcher.Constraint("Tangent", 8, 2, 9, 1),
    Sketcher.Constraint("Coincident", 9, 2, 10, 1),
    Sketcher.Constraint("Coincident", 10, 2, 11, 1),
    Sketcher.Constraint("Coincident", 11, 2, 12, 1),
    Sketcher.Constraint("Coincident", 12, 2, 13, 1),
    Sketcher.Constraint("Coincident", 13, 2, 7, 1),
    Sketcher.Constraint("Vertical", 0),
    Sketcher.Constraint("Horizontal", 2),
    Sketcher.Constraint("Vertical", 3),
    Sketcher.Constraint("Horizontal", 4),
    Sketcher.Constraint("Vertical", 5),
    Sketcher.Constraint("Horizontal", 6),
    Sketcher.Constraint("Horizontal", 7),
    Sketcher.Constraint("Vertical", 9),
    Sketcher.Constraint("Horizontal", 10),
    Sketcher.Constraint("Vertical", 11),
    Sketcher.Constraint("Horizontal", 12),
    Sketcher.Constraint("Vertical", 13),
    Sketcher.Constraint("Equal", 1, 8),
    Sketcher.Constraint("PointOnObject", 1, 2, -1),
    Sketcher.Constraint("PointOnObject", 7, 2, -1),
    Sketcher.Constraint("Horizontal", 0, 2, 3, 2),
    Sketcher.Constraint("Horizontal", 6, 2, 9, 2),
    Sketcher.Constraint("Horizontal", 8, 2, 11, 2),
    Sketcher.Constraint("Equal", 2, 7),
    Sketcher.Constraint("Equal", 6, 10),
    Sketcher.Constraint("Equal", 0, 3),
    Sketcher.Constraint("Radius", 1, 1.0),
    Sketcher.Constraint("DistanceX", 2, 1, 2, 2, 2.0),
    Sketcher.Constraint("DistanceX", 4, 1, 4, 2, 1.5),
    Sketcher.Constraint("DistanceX", 1, 3, -1, 1, 22.0),
    Sketcher.Constraint("DistanceX", 8, 3, -1, 1, 3.0),
])
pad6 = doc.addObject("PartDesign::Pad", "Pad005")
body.addObject(pad6)
pad6.Profile = sketch12
pad6.Length = 20

# Sketch on YZ plane
sketch13 = doc.addObject("Sketcher::SketchObject", "Sketch012")
body.addObject(sketch13)
sketch13.AttachmentSupport = (doc.YZ_Plane, [""])
sketch13.MapMode = "FlatFace"
sketch13.AttachmentOffset = App.Placement(Vector(0, 0, -12.5), App.Rotation())
sketch13.addGeometry([
    Part.LineSegment(Vector(19, -2, 0), Vector(19, -1, 0)),  # 0
    Part.ArcOfCircle(Part.Circle(Vector(20, -1, 0), Vector(0, 0, 1), 1), math.radians(90), math.radians(180)),  # 1
    Part.LineSegment(Vector(20, 0, 0), Vector(18, 0, 0)),  # 2
    Part.LineSegment(Vector(18, 0, 0), Vector(18, -1, 0)),  # 3
    Part.LineSegment(Vector(18, -1, 0), Vector(17, -1, 0)),  # 4
    Part.LineSegment(Vector(17, -1, 0), Vector(17, -2, 0)),  # 5
    Part.LineSegment(Vector(17, -2, 0), Vector(19, -2, 0)),  # 6
], False)
sketch13.addConstraint([
    Sketcher.Constraint("Tangent", 0, 2, 1, 2),
    Sketcher.Constraint("Tangent", 1, 1, 2, 1),
    Sketcher.Constraint("Coincident", 2, 2, 3, 1),
    Sketcher.Constraint("Coincident", 3, 2, 4, 1),
    Sketcher.Constraint("Coincident", 4, 2, 5, 1),
    Sketcher.Constraint("Coincident", 5, 2, 6, 1),
    Sketcher.Constraint("Coincident", 6, 2, 0, 1),
    Sketcher.Constraint("Vertical", 0),
    Sketcher.Constraint("Horizontal", 2),
    Sketcher.Constraint("Vertical", 3),
    Sketcher.Constraint("Horizontal", 4),
    Sketcher.Constraint("Vertical", 5),
    Sketcher.Constraint("Horizontal", 6),
    Sketcher.Constraint("PointOnObject", 1, 1, -1),
    Sketcher.Constraint("Horizontal", 0, 2, 3, 2),
    Sketcher.Constraint("Equal", 2, 6),
    Sketcher.Constraint("Equal", 4, 0),
    Sketcher.Constraint("Radius", 1, 1.0),
    Sketcher.Constraint("DistanceX", 2, 2, 2, 1, 2.0),
    Sketcher.Constraint("DistanceX", -1, 1, 1, 3, 20.0),
])
pad7 = doc.addObject("PartDesign::Pad", "Pad006")
body.addObject(pad7)
pad7.Profile = sketch13
pad7.Length = 5
pad7.Midplane = True

# Sketch on YZ plane
sketch14 = doc.addObject("Sketcher::SketchObject", "Sketch013")
body.addObject(sketch14)
sketch14.AttachmentSupport = (doc.YZ_Plane, [""])
sketch14.MapMode = "FlatFace"
sketch14.AttachmentOffset = App.Placement(Vector(0, 0, -12.5), App.Rotation())
sketch14.addGeometry([
    Part.LineSegment(Vector(-7.5, -1, 0), Vector(-7.5, 0, 0)),
    Part.LineSegment(Vector(-7.5, 0, 0), Vector(-8.5, 0, 0)),
    Part.LineSegment(Vector(-8.5, 0, 0), Vector(-8.5, -1, 0)),
    Part.ArcOfCircle(Part.Circle(Vector(-8, -1, 0), Vector(0, 0, 1), 0.5), math.radians(180), math.radians(360)),
], False)
sketch14.addConstraint([
    Sketcher.Constraint("Coincident", 0, 2, 1, 1),
    Sketcher.Constraint("Coincident", 1, 2, 2, 1),
    Sketcher.Constraint("Tangent", 2, 2, 3, 1),
    Sketcher.Constraint("Tangent", 3, 2, 0, 1),
    Sketcher.Constraint("Vertical", 0),
    Sketcher.Constraint("Horizontal", 1),
    Sketcher.Constraint("Vertical", 2),
    Sketcher.Constraint("PointOnObject", 0, 2, -1),
    Sketcher.Constraint("Equal", 1, 0),
    Sketcher.Constraint("Radius", 3, 0.5),
    Sketcher.Constraint("DistanceX", 3, 3, -1, 1, 8.0),
])
pad8 = doc.addObject("PartDesign::Pad", "Pad007")
body.addObject(pad8)
pad8.Profile = sketch14
pad8.Length = 10
pad8.Midplane = True

doc.recompute()
